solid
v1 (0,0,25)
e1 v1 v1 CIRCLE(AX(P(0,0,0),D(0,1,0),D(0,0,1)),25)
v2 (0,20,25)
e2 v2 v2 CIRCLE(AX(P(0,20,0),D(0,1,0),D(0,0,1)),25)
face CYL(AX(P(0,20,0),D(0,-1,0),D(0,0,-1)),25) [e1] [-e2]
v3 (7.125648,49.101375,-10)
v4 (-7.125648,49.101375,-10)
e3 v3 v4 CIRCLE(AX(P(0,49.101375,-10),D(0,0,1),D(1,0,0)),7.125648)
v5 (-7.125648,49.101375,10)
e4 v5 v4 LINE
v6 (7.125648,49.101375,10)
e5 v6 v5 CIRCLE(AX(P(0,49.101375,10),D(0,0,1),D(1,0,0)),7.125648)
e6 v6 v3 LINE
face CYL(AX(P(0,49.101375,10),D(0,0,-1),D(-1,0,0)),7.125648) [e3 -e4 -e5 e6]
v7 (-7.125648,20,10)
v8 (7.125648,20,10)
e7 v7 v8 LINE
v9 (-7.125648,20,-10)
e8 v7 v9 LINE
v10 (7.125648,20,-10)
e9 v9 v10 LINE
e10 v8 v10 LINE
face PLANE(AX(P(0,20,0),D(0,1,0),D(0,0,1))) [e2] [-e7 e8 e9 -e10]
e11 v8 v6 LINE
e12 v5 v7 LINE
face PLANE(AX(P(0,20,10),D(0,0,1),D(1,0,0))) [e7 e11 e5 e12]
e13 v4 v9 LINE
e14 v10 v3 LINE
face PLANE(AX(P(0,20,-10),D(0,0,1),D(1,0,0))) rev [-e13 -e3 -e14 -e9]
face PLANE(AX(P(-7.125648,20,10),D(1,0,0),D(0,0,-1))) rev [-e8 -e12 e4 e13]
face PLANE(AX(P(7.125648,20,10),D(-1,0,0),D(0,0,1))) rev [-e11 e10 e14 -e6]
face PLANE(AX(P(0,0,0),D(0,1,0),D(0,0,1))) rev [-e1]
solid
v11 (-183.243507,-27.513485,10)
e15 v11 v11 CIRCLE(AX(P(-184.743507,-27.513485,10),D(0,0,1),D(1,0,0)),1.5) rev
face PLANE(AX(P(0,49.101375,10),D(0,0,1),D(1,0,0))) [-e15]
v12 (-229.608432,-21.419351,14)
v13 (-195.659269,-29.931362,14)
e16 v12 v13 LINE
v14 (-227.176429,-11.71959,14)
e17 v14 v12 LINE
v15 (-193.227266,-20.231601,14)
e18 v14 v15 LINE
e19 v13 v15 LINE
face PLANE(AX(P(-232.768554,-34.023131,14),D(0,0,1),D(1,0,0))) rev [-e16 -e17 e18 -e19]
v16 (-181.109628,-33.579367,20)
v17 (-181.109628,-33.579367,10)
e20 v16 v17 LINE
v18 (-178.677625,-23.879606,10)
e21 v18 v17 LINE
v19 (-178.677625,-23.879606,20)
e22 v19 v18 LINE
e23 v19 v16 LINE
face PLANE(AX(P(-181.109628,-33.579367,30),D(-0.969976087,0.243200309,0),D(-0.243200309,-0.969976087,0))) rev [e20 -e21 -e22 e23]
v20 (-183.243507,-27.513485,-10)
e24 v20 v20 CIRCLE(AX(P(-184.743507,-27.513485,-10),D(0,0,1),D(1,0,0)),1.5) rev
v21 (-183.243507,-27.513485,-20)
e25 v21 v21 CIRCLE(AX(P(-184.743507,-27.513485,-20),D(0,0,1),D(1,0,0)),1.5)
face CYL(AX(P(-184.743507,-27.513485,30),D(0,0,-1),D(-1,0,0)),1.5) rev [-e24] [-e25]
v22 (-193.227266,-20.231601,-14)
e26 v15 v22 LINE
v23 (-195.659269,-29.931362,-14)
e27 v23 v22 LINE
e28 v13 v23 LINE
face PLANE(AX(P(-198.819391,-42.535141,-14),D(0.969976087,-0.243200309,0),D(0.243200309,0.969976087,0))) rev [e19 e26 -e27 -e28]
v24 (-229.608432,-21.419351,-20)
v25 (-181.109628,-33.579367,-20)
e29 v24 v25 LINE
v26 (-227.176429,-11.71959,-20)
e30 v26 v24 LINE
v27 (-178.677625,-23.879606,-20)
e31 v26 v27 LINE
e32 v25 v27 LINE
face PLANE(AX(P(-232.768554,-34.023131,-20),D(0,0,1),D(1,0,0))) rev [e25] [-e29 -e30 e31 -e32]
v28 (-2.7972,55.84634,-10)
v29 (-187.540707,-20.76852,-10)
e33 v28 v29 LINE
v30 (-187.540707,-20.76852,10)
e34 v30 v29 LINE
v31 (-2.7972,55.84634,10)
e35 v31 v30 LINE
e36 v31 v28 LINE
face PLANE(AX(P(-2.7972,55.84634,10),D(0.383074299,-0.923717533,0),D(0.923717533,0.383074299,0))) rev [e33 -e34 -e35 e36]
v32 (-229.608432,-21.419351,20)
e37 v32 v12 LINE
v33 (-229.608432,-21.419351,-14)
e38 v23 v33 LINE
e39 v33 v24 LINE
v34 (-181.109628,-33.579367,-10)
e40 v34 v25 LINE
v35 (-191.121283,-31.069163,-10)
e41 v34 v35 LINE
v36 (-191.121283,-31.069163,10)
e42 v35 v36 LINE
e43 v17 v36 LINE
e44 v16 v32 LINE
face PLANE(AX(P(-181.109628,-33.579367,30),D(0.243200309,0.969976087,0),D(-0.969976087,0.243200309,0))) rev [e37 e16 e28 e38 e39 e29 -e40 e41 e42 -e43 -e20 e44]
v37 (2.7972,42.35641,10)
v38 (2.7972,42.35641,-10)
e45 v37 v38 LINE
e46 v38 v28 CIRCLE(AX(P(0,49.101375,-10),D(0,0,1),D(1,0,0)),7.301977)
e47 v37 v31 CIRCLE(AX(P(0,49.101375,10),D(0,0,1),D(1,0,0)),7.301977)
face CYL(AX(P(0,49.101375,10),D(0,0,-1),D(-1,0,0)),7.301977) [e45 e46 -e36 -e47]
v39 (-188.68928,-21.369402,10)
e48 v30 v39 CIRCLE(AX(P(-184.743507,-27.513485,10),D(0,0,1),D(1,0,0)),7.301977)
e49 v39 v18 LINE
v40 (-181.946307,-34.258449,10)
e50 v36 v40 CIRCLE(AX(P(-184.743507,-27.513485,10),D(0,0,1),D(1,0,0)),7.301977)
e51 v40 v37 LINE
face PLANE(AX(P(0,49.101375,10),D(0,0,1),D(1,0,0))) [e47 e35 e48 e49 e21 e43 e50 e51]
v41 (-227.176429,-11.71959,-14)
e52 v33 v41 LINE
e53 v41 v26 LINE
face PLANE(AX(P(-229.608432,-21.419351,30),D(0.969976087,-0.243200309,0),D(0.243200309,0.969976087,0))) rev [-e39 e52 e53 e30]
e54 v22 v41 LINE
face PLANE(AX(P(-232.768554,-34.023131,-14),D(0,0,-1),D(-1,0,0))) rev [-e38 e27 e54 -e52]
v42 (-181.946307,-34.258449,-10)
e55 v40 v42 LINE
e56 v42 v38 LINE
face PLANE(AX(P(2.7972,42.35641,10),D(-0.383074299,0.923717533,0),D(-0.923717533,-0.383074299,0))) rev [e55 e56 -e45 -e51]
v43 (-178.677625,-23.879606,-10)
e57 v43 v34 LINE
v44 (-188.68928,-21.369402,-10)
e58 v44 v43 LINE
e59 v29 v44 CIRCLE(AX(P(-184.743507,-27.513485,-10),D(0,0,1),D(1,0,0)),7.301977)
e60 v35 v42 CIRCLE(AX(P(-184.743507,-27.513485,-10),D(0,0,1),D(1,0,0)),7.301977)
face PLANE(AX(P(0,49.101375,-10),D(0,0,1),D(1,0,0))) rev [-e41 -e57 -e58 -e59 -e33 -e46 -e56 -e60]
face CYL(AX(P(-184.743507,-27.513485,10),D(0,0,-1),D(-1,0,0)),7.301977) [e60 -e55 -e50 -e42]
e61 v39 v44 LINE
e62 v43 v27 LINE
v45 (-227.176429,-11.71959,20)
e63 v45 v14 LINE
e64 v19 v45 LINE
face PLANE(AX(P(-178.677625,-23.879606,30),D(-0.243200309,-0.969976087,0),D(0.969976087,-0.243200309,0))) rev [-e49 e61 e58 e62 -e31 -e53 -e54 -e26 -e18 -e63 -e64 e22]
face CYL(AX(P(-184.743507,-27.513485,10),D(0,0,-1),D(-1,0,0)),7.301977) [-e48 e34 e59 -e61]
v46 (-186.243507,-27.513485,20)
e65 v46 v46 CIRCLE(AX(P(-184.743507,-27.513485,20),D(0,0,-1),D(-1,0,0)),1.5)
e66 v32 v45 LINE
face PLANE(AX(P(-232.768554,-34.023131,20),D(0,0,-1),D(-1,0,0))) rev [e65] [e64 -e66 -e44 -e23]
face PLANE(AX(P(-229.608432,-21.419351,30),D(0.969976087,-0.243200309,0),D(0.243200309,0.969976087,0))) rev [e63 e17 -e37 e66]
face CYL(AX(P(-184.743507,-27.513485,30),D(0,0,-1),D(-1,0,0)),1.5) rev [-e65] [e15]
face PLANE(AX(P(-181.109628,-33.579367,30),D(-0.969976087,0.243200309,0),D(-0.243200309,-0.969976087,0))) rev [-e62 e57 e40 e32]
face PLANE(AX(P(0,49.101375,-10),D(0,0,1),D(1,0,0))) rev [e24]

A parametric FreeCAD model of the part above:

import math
import FreeCAD as App
import Part
import Sketcher
Q = App.Units.Quantity

doc = App.newDocument("Part")
body = doc.addObject("PartDesign::Body", "Body")

sketch1 = body.newObject("Sketcher::SketchObject", "Sketch")
sketch1.AttachmentSupport = (doc.getObject("XZ_Plane"), [""])
sketch1.MapMode = "FlatFace"
sketch1.addGeometry(Part.Circle(App.Vector(0, 0, 0), App.Vector(0, 0, 1), 25), False)
sketch1.addConstraint([
    Sketcher.Constraint("Coincident", 0, 3, -1, 1),
    Sketcher.Constraint("Diameter", 0, Q("50 mm")),
])
pad1 = body.newObject("PartDesign::Pad", "Pad")
pad1.Profile = sketch1
pad1.Length = 20
pad1.Reversed = True

sketch2 = body.newObject("Sketcher::SketchObject", "Sketch001")
sketch2.AttachmentSupport = (doc.getObject("XY_Plane"), [""])
sketch2.MapMode = "FlatFace"
sketch2.addGeometry([
    Part.LineSegment(App.Vector(-7, 49, 0), App.Vector(-7, 20, 0)),
    Part.ArcOfCircle(Part.Circle(App.Vector(0, 20, 0), App.Vector(0, 0, 1), 7), math.radians(180), math.radians(360)),
    Part.LineSegment(App.Vector(7, 20, 0), App.Vector(7, 49, 0)),
    Part.ArcOfCircle(Part.Circle(App.Vector(0, 49, 0), App.Vector(0, 0, 1), 7), math.radians(0), math.radians(180)),
], False)
sketch2.addConstraint([
    Sketcher.Constraint("Tangent", 0, 2, 1, 1),
    Sketcher.Constraint("Tangent", 1, 2, 2, 1),
    Sketcher.Constraint("Tangent", 2, 2, 3, 1),
    Sketcher.Constraint("Tangent", 3, 2, 0, 1),
    Sketcher.Constraint("Vertical", 0),
    Sketcher.Constraint("Vertical", 2),
    Sketcher.Constraint("PointOnObject", 1, 3, -2),
    Sketcher.Constraint("DistanceY", -1, 1, 1, 3, Q("20 mm")),
    Sketcher.Constraint("Radius", 1, Q("7.125648 mm")),
    Sketcher.Constraint("DistanceY", 0, 2, 0, 1, Q("29.101375 mm")),
])
pad2 = body.newObject("PartDesign::Pad", "Pad001")
pad2.Profile = sketch2
pad2.Length = 20
pad2.Midplane = True
body2 = doc.addObject("PartDesign::Body", "Body001")

sketch3 = body2.newObject("Sketcher::SketchObject", "Sketch002")
sketch3.AttachmentSupport = (doc.getObject("XY_Plane001"), [""])
sketch3.MapMode = "FlatFace"
sketch3.addGeometry([
    Part.LineSegment(App.Vector(-182, -34, 0), App.Vector(3, 42, 0)),
    Part.ArcOfCircle(Part.Circle(App.Vector(0, 49, 0), App.Vector(0, 0, 1), 7), math.radians(-67), math.radians(113)),
    Part.LineSegment(App.Vector(-3, 56, 0), App.Vector(-188, -21, 0)),
    Part.ArcOfCircle(Part.Circle(App.Vector(-185, -28, 0), App.Vector(0, 0, 1), 7), math.radians(113), math.radians(293)),
], False)
sketch3.addConstraint([
    Sketcher.Constraint("Tangent", 0, 2, 1, 1),
    Sketcher.Constraint("Tangent", 1, 2, 2, 1),
    Sketcher.Constraint("Tangent", 2, 2, 3, 1),
    Sketcher.Constraint("Tangent", 3, 2, 0, 1),
    Sketcher.Constraint("Equal", 1, 3),
    Sketcher.Constraint("PointOnObject", 1, 3, -2),
    Sketcher.Constraint("Distance", 0, Q("200 mm")),
    Sketcher.Constraint("Radius", 1, Q("7.301977 mm")),
    Sketcher.Constraint("DistanceX", -1, 1, 0, 2, Q("2.7972 mm")),
    Sketcher.Constraint("DistanceY", -1, 1, 0, 2, Q("42.35641 mm")),
])
pad3 = body2.newObject("PartDesign::Pad", "Pad002")
pad3.Profile = sketch3
pad3.Length = 20
pad3.Midplane = True

sketch4 = body2.newObject("Sketcher::SketchObject", "Sketch003")
sketch4.AttachmentSupport = (doc.getObject("XY_Plane001"), [""])
sketch4.MapMode = "FlatFace"
sketch4.addGeometry([
    Part.LineSegment(App.Vector(-181.1, -33.6, 0), App.Vector(-178.7, -23.9, 0)),
    Part.LineSegment(App.Vector(-178.7, -23.9, 0), App.Vector(-227.2, -11.7, 0)),
    Part.LineSegment(App.Vector(-227.2, -11.7, 0), App.Vector(-229.6, -21.4, 0)),
    Part.LineSegment(App.Vector(-229.6, -21.4, 0), App.Vector(-181.1, -33.6, 0)),
    Part.Circle(App.Vector(-184.7, -27.5, 0), App.Vector(0, 0, 1), 1.5),
], False)
sketch4.addConstraint([
    Sketcher.Constraint("Coincident", 0, 2, 1, 1),
    Sketcher.Constraint("Coincident", 1, 2, 2, 1),
    Sketcher.Constraint("Coincident", 2, 2, 3, 1),
    Sketcher.Constraint("Coincident", 3, 2, 0, 1),
    Sketcher.Constraint("Perpendicular", 0, 1),
    Sketcher.Constraint("Perpendicular", 1, 2),
    Sketcher.Constraint("Perpendicular", 2, 3),
    Sketcher.Constraint("Diameter", 4, Q("3 mm")),
    Sketcher.Constraint("Distance", 0, Q("10 mm")),
    Sketcher.Constraint("Distance", 1, Q("50 mm")),
    Sketcher.Constraint("DistanceX", 1, 2, 3, 2, Q("46.066801 mm")),
    Sketcher.Constraint("DistanceX", 1, 2, -1, 1, Q("227.176429 mm")),
    Sketcher.Constraint("DistanceY", 1, 2, -1, 1, Q("11.71959 mm")),
    Sketcher.Constraint("DistanceX", 4, 3, 0, 2, Q("6.065882 mm")),
    Sketcher.Constraint("DistanceY", 4, 3, 0, 2, Q("3.633879 mm")),
])
pad4 = body2.newObject("PartDesign::Pad", "Pad003")
pad4.Profile = sketch4
pad4.Length = 60
pad4.Midplane = True

sketch5 = body2.newObject("Sketcher::SketchObject", "Sketch004")
sketch5.Placement = App.Placement(App.Vector(-16.201299, -64.616994, 0), App.Rotation(App.Vector(0.969976087, -0.243200309, 0), App.Vector(0, 0, -1), App.Vector(0.243200309, 0.969976087, 0), "ZXY"))
sketch5.addGeometry([
    Part.LineSegment(App.Vector(-218, 14, 0), App.Vector(-218, -14, 0)),
    Part.LineSegment(App.Vector(-218, -14, 0), App.Vector(-183, -14, 0)),
    Part.LineSegment(App.Vector(-183, -14, 0), App.Vector(-183, 14, 0)),
    Part.LineSegment(App.Vector(-183, 14, 0), App.Vector(-218, 14, 0)),
    Part.LineSegment(App.Vector(-218, 30, 0), App.Vector(-218, 20, 0)),
    Part.LineSegment(App.Vector(-218, 20, 0), App.Vector(-135, 20, 0)),
    Part.LineSegment(App.Vector(-135, 20, 0), App.Vector(-135, 30, 0)),
    Part.LineSegment(App.Vector(-135, 30, 0), App.Vector(-218, 30, 0)),
    Part.LineSegment(App.Vector(-218, -20, 0), App.Vector(-218, -30, 0)),
    Part.LineSegment(App.Vector(-218, -30, 0), App.Vector(-135, -30, 0)),
    Part.LineSegment(App.Vector(-135, -30, 0), App.Vector(-135, -20, 0)),
    Part.LineSegment(App.Vector(-135, -20, 0), App.Vector(-218, -20, 0)),
], False)
sketch5.addConstraint([
    Sketcher.Constraint("Coincident", 0, 2, 1, 1),
    Sketcher.Constraint("Coincident", 1, 2, 2, 1),
    Sketcher.Constraint("Coincident", 2, 2, 3, 1),
    Sketcher.Constraint("Coincident", 3, 2, 0, 1),
    Sketcher.Constraint("Coincident", 4, 2, 5, 1),
    Sketcher.Constraint("Coincident", 5, 2, 6, 1),
    Sketcher.Constraint("Coincident", 6, 2, 7, 1),
    Sketcher.Constraint("Coincident", 7, 2, 4, 1),
    Sketcher.Constraint("Coincident", 8, 2, 9, 1),
    Sketcher.Constraint("Coincident", 9, 2, 10, 1),
    Sketcher.Constraint("Coincident", 10, 2, 11, 1),
    Sketcher.Constraint("Coincident", 11, 2, 8, 1),
    Sketcher.Constraint("Vertical", 0),
    Sketcher.Constraint("Horizontal", 1),
    Sketcher.Constraint("Vertical", 2),
    Sketcher.Constraint("Horizontal", 3),
    Sketcher.Constraint("Vertical", 4),
    Sketcher.Constraint("Horizontal", 5),
    Sketcher.Constraint("Vertical", 6),
    Sketcher.Constraint("Horizontal", 7),
    Sketcher.Constraint("Vertical", 8),
    Sketcher.Constraint("Horizontal", 9),
    Sketcher.Constraint("Vertical", 10),
    Sketcher.Constraint("Horizontal", 11),
    Sketcher.Constraint("Symmetric", 7, 2, 8, 2, -1),
    Sketcher.Constraint("Symmetric", 5, 2, 10, 2, -1),
    Sketcher.Constraint("Vertical", 3, 2, 4, 2),
    Sketcher.Constraint("DistanceX", 1, 1, 1, 2, Q("35 mm")),
    Sketcher.Constraint("DistanceY", 0, 2, 0, 1, Q("28 mm")),
    Sketcher.Constraint("DistanceY", 4, 2, 4, 1, Q("10 mm")),
    Sketcher.Constraint("DistanceY", 0, 2, -1, 1, Q("14 mm")),
    Sketcher.Constraint("DistanceY", -1, 1, 4, 2, Q("20 mm")),
    Sketcher.Constraint("DistanceX", 5, 1, 5, 2, Q("82.955011 mm")),
    Sketcher.Constraint("DistanceX", 0, 2, -1, 1, Q("217.505496 mm")),
])
pocket1 = body2.newObject("PartDesign::Pocket", "Pocket")
pocket1.Profile = sketch5
pocket1.Type = "ThroughAll"

doc.recompute()
